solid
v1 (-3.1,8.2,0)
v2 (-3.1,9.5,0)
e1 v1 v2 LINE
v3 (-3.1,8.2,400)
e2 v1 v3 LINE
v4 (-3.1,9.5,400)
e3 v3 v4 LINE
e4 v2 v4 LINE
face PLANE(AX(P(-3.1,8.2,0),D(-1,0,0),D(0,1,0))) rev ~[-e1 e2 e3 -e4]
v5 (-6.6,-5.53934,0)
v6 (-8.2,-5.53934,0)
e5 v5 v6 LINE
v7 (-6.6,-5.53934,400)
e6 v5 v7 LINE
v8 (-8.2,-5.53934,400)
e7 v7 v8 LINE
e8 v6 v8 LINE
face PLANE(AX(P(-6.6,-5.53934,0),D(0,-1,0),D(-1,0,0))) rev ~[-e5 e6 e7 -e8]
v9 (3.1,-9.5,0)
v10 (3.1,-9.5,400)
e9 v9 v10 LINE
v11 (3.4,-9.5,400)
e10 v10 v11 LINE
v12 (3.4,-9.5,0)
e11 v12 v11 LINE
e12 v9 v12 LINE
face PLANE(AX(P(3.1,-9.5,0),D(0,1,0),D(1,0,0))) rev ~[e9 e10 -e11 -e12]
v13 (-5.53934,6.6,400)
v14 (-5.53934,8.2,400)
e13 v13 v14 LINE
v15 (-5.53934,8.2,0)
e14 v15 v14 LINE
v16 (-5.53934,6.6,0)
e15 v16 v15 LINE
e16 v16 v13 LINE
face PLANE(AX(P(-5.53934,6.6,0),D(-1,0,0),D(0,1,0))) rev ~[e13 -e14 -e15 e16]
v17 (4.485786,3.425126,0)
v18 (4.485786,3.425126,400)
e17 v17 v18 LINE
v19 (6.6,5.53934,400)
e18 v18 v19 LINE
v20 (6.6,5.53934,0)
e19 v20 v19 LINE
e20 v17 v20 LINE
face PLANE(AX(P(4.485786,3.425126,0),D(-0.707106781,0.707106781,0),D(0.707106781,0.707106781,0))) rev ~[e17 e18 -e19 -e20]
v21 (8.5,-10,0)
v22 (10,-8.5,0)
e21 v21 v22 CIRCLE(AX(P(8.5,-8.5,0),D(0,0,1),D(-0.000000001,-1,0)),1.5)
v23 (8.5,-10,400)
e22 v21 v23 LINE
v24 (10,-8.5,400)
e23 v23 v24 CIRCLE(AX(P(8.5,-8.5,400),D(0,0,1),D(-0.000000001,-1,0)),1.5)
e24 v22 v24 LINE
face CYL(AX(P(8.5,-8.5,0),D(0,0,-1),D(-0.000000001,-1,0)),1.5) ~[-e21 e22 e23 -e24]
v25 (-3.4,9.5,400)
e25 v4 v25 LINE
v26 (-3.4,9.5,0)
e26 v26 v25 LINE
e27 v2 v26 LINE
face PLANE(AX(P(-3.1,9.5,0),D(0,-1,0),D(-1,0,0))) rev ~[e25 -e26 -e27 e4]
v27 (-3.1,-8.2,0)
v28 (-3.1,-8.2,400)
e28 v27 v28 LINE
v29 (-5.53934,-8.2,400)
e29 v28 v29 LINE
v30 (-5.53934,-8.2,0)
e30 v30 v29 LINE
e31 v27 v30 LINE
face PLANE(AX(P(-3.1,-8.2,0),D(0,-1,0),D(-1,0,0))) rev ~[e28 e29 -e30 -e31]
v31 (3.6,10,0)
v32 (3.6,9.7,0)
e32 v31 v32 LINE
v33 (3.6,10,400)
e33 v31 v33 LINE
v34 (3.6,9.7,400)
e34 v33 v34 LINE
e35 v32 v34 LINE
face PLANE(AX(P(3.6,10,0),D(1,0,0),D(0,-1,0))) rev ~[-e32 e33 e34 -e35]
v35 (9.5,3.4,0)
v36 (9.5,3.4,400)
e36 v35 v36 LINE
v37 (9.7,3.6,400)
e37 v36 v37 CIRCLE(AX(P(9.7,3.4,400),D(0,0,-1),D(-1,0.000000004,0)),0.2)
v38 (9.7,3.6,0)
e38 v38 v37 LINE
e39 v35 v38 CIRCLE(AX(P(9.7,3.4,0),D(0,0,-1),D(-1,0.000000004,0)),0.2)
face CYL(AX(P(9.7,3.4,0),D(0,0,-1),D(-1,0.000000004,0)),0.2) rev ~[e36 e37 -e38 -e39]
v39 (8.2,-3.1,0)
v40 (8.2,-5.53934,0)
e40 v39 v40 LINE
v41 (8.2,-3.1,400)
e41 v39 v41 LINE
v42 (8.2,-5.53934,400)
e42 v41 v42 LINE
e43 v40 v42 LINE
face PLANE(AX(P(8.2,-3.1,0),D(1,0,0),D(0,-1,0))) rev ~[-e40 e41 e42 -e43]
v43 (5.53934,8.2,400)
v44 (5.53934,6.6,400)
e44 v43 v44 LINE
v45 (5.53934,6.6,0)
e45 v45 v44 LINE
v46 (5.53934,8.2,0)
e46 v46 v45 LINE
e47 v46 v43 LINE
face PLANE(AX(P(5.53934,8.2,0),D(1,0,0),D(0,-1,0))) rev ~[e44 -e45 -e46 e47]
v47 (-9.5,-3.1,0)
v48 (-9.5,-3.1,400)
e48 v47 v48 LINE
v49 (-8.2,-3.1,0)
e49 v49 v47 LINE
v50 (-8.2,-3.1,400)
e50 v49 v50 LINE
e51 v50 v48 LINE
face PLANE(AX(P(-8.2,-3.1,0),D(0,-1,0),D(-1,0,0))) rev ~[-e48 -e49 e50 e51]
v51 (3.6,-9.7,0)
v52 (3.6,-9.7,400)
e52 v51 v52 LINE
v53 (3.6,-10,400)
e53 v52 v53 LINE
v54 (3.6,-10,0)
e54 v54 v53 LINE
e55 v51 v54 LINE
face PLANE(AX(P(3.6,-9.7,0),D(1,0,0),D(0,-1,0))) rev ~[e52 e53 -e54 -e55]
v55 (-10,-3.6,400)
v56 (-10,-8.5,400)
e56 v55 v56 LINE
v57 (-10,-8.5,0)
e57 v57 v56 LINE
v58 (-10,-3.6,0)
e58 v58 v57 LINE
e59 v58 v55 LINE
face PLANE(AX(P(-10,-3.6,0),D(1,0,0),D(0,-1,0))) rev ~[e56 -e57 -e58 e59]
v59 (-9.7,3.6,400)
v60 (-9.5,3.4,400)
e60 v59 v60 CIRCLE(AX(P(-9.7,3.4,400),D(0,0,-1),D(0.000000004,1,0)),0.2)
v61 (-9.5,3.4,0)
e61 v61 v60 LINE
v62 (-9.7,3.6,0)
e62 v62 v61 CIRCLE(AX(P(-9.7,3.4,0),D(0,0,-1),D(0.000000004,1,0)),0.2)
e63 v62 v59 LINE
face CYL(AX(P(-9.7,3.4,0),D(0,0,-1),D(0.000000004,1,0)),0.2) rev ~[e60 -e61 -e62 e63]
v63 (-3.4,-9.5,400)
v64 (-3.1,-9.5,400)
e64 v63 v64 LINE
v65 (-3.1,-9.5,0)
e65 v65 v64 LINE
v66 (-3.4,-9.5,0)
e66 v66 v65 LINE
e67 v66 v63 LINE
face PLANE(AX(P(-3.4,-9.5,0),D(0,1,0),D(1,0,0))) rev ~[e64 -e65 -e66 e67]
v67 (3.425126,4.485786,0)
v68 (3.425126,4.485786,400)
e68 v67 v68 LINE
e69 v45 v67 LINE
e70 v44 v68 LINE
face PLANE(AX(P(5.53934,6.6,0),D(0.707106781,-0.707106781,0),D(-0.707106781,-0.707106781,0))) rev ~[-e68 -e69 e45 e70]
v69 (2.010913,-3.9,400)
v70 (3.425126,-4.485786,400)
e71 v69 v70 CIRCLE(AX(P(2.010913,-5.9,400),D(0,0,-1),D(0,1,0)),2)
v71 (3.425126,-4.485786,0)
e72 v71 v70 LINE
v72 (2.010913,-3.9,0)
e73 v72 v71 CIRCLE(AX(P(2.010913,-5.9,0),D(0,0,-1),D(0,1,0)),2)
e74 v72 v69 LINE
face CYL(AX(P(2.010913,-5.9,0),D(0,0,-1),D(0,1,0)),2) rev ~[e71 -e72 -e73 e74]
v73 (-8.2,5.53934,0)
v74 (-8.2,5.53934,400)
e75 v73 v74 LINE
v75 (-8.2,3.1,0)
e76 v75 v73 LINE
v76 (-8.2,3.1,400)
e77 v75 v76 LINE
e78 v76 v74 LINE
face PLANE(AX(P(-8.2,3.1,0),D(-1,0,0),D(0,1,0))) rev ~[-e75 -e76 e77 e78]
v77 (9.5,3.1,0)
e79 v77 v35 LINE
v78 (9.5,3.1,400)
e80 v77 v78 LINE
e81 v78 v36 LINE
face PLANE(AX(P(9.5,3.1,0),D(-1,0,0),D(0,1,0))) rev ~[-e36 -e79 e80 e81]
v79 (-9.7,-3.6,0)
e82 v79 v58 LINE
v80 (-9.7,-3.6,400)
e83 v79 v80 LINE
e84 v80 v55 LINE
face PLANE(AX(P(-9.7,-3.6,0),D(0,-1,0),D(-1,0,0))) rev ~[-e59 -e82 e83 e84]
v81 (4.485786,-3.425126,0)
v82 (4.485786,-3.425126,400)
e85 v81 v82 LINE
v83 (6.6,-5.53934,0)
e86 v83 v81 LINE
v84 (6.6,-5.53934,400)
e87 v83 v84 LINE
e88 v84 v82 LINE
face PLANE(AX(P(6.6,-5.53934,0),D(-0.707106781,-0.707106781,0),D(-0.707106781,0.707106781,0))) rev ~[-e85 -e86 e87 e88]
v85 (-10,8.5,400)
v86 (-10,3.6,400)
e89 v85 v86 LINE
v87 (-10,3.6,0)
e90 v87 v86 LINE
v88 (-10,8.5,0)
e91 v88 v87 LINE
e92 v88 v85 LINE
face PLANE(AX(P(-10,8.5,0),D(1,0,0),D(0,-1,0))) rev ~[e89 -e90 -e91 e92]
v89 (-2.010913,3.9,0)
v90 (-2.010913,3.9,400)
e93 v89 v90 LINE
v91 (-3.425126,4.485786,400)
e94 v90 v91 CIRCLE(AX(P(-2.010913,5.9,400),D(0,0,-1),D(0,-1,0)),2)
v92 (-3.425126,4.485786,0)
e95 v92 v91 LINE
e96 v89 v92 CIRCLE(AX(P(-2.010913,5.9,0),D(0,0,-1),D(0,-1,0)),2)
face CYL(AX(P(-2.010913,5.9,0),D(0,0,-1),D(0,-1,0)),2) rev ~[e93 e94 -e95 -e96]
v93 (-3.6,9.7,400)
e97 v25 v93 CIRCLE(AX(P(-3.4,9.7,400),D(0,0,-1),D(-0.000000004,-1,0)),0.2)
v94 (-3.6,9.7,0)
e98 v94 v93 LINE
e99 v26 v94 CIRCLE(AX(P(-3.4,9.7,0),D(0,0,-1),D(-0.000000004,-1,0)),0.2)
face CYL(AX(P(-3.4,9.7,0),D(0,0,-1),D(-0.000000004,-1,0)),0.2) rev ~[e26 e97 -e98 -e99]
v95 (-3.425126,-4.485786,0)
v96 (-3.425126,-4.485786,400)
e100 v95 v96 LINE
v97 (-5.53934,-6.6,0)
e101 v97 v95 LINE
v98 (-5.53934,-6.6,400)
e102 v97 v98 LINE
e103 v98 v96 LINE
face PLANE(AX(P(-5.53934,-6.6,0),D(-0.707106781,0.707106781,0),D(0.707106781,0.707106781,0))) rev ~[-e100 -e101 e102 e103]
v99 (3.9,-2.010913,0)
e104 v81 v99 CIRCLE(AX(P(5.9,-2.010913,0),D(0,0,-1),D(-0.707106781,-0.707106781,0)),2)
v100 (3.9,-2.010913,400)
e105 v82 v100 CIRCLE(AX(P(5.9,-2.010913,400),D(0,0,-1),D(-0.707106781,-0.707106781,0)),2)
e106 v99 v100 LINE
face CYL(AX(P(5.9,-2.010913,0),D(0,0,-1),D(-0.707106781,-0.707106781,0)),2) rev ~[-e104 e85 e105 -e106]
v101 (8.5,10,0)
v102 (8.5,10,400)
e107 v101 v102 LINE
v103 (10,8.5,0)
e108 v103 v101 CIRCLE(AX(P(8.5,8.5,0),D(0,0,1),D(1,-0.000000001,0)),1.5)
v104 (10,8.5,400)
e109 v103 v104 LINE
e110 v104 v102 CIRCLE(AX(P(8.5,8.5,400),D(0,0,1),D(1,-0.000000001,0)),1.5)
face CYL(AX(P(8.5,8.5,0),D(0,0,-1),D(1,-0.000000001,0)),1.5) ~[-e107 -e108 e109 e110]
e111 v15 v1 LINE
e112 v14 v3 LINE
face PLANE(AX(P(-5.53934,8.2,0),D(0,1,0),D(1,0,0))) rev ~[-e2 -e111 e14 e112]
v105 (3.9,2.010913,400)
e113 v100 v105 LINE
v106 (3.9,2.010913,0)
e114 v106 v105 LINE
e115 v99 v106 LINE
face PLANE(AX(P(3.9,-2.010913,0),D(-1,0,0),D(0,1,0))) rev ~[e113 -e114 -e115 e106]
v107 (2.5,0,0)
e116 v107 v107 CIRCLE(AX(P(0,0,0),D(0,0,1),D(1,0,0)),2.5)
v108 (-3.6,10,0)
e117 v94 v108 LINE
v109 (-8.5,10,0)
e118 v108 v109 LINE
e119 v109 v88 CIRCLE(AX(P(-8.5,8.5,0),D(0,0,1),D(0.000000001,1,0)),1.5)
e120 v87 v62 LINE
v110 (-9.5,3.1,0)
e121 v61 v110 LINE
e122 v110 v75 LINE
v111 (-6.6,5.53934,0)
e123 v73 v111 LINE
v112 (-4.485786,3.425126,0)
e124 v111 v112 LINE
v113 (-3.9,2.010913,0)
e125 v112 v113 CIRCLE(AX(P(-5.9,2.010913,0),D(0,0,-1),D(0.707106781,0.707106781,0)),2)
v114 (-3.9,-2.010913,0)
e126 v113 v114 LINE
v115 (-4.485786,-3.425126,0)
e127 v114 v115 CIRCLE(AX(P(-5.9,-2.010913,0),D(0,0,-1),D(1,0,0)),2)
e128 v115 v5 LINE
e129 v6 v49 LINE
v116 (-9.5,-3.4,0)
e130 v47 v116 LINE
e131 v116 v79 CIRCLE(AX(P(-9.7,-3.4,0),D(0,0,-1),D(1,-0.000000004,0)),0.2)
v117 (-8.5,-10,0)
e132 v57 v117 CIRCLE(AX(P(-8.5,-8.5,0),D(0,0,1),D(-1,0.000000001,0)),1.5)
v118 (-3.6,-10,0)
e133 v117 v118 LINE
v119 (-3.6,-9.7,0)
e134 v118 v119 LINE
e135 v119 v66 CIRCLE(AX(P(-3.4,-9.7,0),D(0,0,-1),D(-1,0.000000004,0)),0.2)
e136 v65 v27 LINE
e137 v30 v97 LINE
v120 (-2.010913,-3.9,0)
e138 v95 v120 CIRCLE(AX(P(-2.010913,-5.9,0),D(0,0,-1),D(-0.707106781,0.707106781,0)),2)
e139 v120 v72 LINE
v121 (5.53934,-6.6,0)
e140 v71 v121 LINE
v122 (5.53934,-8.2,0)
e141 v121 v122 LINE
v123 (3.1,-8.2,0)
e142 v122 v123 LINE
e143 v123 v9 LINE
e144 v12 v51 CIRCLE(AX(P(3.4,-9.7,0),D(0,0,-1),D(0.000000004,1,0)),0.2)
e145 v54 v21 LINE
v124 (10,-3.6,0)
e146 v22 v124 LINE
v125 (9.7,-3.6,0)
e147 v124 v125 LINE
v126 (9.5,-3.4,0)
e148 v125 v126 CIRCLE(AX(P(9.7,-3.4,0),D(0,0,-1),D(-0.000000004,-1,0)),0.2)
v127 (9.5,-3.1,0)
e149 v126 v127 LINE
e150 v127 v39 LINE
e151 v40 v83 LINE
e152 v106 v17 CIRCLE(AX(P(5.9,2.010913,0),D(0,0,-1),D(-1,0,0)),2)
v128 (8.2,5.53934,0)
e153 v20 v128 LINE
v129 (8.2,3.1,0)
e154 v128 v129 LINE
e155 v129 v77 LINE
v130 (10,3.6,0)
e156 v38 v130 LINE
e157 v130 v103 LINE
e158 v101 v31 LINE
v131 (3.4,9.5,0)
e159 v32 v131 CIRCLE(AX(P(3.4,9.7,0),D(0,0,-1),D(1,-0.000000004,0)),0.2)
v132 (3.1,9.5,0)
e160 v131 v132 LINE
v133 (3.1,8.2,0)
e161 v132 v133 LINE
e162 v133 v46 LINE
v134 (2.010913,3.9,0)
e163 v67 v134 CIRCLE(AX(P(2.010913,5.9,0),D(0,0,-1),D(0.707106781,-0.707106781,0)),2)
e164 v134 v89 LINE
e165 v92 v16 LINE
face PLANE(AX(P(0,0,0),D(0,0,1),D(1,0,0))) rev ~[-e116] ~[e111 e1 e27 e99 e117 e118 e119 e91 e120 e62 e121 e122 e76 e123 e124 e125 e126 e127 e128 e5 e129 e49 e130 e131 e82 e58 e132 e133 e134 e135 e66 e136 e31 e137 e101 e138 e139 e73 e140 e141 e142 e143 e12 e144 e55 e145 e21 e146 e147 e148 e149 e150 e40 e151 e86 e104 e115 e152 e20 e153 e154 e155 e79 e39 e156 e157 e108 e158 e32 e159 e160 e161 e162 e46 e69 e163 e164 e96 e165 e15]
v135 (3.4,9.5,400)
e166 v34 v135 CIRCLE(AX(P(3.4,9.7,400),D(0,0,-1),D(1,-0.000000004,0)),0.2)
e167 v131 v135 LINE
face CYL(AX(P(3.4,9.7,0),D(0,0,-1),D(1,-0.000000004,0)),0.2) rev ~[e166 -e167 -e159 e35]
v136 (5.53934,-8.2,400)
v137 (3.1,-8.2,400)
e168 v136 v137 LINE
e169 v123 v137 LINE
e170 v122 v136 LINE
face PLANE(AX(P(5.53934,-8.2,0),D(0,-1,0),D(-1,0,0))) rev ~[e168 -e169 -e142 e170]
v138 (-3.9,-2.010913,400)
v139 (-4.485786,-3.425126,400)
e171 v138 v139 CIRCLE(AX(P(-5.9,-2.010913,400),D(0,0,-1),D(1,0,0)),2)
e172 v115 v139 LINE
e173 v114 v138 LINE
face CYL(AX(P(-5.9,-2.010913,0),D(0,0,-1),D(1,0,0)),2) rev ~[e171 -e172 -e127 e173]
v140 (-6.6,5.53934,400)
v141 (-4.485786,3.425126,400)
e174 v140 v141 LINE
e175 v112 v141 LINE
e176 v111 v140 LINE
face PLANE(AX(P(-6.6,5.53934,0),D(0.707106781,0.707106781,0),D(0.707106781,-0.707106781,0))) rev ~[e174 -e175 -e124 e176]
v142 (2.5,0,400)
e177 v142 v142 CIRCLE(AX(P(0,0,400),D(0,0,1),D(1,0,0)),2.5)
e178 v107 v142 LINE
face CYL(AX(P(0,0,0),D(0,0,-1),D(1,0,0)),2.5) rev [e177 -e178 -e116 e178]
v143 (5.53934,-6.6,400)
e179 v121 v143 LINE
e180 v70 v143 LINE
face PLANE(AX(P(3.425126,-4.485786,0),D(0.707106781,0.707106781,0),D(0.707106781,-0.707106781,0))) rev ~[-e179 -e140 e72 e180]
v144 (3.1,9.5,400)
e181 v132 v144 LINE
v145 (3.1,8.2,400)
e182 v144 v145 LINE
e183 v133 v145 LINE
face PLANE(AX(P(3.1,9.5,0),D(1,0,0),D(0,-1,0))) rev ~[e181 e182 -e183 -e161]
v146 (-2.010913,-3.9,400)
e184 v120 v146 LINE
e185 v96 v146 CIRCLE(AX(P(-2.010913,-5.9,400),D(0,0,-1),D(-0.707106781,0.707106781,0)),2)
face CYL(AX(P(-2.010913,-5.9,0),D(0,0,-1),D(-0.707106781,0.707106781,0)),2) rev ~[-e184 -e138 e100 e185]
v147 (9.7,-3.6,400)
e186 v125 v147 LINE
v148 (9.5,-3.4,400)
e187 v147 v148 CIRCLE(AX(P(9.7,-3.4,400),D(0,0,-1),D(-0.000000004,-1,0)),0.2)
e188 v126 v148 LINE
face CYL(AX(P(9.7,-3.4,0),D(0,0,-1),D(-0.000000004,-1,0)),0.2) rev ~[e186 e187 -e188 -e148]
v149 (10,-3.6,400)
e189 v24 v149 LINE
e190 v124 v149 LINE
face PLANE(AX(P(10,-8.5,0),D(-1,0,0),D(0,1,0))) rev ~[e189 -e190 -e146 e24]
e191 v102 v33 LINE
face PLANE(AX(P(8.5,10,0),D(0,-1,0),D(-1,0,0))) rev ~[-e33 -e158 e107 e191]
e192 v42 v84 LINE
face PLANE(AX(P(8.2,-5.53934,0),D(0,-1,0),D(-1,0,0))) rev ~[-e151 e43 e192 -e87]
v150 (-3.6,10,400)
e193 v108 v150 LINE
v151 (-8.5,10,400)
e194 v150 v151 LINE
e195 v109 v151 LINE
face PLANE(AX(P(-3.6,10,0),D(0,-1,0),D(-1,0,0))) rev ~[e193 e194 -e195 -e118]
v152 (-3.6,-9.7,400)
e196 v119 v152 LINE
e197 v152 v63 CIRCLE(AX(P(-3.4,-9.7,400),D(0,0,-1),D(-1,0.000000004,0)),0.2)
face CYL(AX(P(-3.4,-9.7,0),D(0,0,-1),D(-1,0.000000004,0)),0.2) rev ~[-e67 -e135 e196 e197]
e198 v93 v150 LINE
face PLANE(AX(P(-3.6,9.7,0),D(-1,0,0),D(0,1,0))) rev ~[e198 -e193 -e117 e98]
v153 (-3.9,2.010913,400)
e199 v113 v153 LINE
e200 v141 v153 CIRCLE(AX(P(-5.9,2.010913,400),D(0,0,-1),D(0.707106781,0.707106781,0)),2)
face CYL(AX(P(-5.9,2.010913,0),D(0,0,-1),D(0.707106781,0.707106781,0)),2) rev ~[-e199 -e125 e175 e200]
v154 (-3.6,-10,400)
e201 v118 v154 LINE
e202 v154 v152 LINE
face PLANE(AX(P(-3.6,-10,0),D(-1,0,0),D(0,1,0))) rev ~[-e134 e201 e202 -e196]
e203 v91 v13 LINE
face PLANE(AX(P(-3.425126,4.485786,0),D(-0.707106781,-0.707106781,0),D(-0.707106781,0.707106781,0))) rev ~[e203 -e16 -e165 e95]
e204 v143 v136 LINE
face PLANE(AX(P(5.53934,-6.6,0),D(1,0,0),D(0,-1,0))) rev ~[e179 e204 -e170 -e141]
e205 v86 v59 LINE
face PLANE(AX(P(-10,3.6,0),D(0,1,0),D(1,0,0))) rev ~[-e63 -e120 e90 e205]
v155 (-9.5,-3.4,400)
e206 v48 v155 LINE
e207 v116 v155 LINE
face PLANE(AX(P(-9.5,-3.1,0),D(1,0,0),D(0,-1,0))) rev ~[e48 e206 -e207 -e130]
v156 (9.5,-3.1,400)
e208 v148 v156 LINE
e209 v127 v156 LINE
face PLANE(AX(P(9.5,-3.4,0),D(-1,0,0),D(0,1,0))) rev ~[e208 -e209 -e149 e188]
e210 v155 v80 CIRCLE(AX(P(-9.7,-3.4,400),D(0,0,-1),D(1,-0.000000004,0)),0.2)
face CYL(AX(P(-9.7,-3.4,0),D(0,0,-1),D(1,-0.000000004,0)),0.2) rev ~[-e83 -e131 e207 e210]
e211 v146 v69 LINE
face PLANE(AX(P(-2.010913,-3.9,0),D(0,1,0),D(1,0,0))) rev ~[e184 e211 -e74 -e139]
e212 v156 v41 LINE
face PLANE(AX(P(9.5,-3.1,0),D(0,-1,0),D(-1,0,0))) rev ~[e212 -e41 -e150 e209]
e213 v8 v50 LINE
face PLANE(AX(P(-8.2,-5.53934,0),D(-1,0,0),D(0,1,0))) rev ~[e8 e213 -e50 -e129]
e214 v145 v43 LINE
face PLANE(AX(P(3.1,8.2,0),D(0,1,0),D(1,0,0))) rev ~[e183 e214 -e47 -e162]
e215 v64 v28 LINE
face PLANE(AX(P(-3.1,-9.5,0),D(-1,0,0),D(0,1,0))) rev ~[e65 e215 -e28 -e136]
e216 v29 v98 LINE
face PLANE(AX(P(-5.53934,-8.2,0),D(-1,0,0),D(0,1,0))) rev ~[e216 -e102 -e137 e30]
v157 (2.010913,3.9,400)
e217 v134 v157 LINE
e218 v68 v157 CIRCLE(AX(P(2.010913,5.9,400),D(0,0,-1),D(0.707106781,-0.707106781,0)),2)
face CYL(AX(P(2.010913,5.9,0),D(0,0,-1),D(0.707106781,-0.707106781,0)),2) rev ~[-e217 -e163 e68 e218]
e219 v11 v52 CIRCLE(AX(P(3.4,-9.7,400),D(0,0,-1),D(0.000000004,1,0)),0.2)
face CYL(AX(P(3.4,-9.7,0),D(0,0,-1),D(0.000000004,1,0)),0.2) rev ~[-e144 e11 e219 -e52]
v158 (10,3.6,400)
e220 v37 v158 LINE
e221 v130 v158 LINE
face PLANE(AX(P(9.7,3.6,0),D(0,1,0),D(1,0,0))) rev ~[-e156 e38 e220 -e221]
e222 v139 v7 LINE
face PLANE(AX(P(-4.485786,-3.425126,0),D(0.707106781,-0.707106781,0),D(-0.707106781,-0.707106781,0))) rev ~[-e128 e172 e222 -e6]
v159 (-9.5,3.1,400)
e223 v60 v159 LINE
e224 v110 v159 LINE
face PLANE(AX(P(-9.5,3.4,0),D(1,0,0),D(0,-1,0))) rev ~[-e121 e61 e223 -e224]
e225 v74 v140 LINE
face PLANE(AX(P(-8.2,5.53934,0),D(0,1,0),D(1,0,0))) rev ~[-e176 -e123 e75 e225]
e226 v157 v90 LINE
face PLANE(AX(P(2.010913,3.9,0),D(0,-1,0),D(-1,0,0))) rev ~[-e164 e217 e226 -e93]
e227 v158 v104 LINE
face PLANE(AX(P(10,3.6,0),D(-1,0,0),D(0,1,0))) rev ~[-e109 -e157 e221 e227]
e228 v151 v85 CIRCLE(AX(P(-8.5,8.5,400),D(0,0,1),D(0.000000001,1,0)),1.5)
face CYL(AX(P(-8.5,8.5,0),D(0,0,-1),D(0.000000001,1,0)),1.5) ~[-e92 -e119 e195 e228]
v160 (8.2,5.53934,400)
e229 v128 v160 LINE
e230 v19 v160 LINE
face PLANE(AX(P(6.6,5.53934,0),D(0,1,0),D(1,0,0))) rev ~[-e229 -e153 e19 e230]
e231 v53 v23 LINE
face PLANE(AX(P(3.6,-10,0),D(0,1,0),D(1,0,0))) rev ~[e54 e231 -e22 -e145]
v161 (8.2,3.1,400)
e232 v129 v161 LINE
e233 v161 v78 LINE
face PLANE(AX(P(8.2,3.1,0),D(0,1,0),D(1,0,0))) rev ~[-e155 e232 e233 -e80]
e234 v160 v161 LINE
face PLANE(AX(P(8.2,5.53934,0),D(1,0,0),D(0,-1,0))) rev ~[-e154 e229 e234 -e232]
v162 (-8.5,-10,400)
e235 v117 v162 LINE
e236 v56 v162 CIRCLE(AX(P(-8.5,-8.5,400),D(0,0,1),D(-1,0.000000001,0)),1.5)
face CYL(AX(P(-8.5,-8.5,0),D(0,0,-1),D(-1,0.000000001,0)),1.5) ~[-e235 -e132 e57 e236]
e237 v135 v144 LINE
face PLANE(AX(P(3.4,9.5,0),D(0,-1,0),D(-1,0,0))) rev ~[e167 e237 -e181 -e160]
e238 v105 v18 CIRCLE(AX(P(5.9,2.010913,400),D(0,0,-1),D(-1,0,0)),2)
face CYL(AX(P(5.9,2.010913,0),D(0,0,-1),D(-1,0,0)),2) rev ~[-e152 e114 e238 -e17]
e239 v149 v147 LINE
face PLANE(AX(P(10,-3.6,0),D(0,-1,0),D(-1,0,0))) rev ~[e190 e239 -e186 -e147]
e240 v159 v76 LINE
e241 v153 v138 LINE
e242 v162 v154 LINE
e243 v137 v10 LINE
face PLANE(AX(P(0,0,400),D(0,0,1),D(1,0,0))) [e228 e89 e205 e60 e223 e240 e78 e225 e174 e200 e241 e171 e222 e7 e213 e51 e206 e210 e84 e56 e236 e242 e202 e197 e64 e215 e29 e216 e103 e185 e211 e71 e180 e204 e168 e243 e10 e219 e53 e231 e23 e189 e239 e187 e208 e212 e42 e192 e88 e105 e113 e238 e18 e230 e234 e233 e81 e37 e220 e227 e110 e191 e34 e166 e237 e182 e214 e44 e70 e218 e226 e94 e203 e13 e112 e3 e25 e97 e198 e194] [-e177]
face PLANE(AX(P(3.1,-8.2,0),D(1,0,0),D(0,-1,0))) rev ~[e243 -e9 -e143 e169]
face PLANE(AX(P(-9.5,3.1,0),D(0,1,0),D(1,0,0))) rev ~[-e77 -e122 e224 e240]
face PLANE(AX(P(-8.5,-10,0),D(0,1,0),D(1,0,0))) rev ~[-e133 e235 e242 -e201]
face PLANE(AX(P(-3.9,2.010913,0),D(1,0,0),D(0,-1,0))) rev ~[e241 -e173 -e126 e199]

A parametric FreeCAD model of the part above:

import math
import FreeCAD as App
import Part
import Sketcher
from FreeCAD import Vector
Q = App.Units.Quantity

doc = App.newDocument("Part")
body = doc.addObject("PartDesign::Body", "Body")

sketch1 = body.newObject("Sketcher::SketchObject", "Sketch")
sketch1.AttachmentSupport = (doc.getObject("XY_Plane"), [""])
sketch1.MapMode = "FlatFace"
sketch1.addGeometry(Part.ArcOfCircle(Part.Circle(Vector(-2.01, 5.9, 0), Vector(0, 0, 1), 2), math.radians(-135), math.radians(-90)), False)
sketch1.addGeometry(Part.LineSegment(Vector(-3.43, 4.49, 0), Vector(-5.54, 6.6, 0)), False)
sketch1.addGeometry(Part.LineSegment(Vector(-5.54, 6.6, 0), Vector(-5.54, 8.2, 0)), False)
sketch1.addGeometry(Part.LineSegment(Vector(-5.54, 8.2, 0), Vector(-3.1, 8.2, 0)), False)
sketch1.addGeometry(Part.LineSegment(Vector(-3.1, 8.2, 0), Vector(-3.1, 9.5, 0)), False)
sketch1.addGeometry(Part.LineSegment(Vector(-3.1, 9.5, 0), Vector(-3.4, 9.5, 0)), False)
sketch1.addGeometry(Part.ArcOfCircle(Part.Circle(Vector(-3.4, 9.7, 0), Vector(0, 0, 1), 0.2), math.radians(-180), math.radians(-90)), False)
sketch1.addGeometry(Part.LineSegment(Vector(-3.6, 9.7, 0), Vector(-3.6, 10, 0)), False)
sketch1.addGeometry(Part.LineSegment(Vector(-3.6, 10, 0), Vector(-8.5, 10, 0)), False)
sketch1.addGeometry(Part.ArcOfCircle(Part.Circle(Vector(-8.5, 8.5, 0), Vector(0, 0, 1), 1.5), math.radians(90), math.radians(180)), False)
sketch1.addGeometry(Part.LineSegment(Vector(-10, 8.5, 0), Vector(-10, 3.6, 0)), False)
sketch1.addGeometry(Part.LineSegment(Vector(-10, 3.6, 0), Vector(-9.7, 3.6, 0)), False)
sketch1.addGeometry(Part.ArcOfCircle(Part.Circle(Vector(-9.7, 3.4, 0), Vector(0, 0, 1), 0.2), math.radians(0), math.radians(90)), False)
sketch1.addGeometry(Part.LineSegment(Vector(-9.5, 3.4, 0), Vector(-9.5, 3.1, 0)), False)
sketch1.addGeometry(Part.LineSegment(Vector(-9.5, 3.1, 0), Vector(-8.2, 3.1, 0)), False)
sketch1.addGeometry(Part.LineSegment(Vector(-8.2, 3.1, 0), Vector(-8.2, 5.54, 0)), False)
sketch1.addGeometry(Part.LineSegment(Vector(-8.2, 5.54, 0), Vector(-6.6, 5.54, 0)), False)
sketch1.addGeometry(Part.LineSegment(Vector(-6.6, 5.54, 0), Vector(-4.49, 3.43, 0)), False)
sketch1.addGeometry(Part.ArcOfCircle(Part.Circle(Vector(-5.9, 2.01, 0), Vector(0, 0, 1), 2), math.radians(0), math.radians(45)), False)
sketch1.addGeometry(Part.LineSegment(Vector(-3.9, 2.01, 0), Vector(-3.9, -2.01, 0)), False)
sketch1.addGeometry(Part.ArcOfCircle(Part.Circle(Vector(-5.9, -2.01, 0), Vector(0, 0, 1), 2), math.radians(-45), math.radians(0)), False)
sketch1.addGeometry(Part.LineSegment(Vector(-4.49, -3.43, 0), Vector(-6.6, -5.54, 0)), False)
sketch1.addGeometry(Part.LineSegment(Vector(-6.6, -5.54, 0), Vector(-8.2, -5.54, 0)), False)
sketch1.addGeometry(Part.LineSegment(Vector(-8.2, -5.54, 0), Vector(-8.2, -3.1, 0)), False)
sketch1.addGeometry(Part.LineSegment(Vector(-8.2, -3.1, 0), Vector(-9.5, -3.1, 0)), False)
sketch1.addGeometry(Part.LineSegment(Vector(-9.5, -3.1, 0), Vector(-9.5, -3.4, 0)), False)
sketch1.addGeometry(Part.ArcOfCircle(Part.Circle(Vector(-9.7, -3.4, 0), Vector(0, 0, 1), 0.2), math.radians(-90), math.radians(0)), False)
sketch1.addGeometry(Part.LineSegment(Vector(-9.7, -3.6, 0), Vector(-10, -3.6, 0)), False)
sketch1.addGeometry(Part.LineSegment(Vector(-10, -3.6, 0), Vector(-10, -8.5, 0)), False)
sketch1.addGeometry(Part.ArcOfCircle(Part.Circle(Vector(-8.5, -8.5, 0), Vector(0, 0, 1), 1.5), math.radians(180), math.radians(270)), False)
sketch1.addGeometry(Part.LineSegment(Vector(-8.5, -10, 0), Vector(-3.6, -10, 0)), False)
sketch1.addGeometry(Part.LineSegment(Vector(-3.6, -10, 0), Vector(-3.6, -9.7, 0)), False)
sketch1.addGeometry(Part.ArcOfCircle(Part.Circle(Vector(-3.4, -9.7, 0), Vector(0, 0, 1), 0.2), math.radians(90), math.radians(180)), False)
sketch1.addGeometry(Part.LineSegment(Vector(-3.4, -9.5, 0), Vector(-3.1, -9.5, 0)), False)
sketch1.addGeometry(Part.LineSegment(Vector(-3.1, -9.5, 0), Vector(-3.1, -8.2, 0)), False)
sketch1.addGeometry(Part.LineSegment(Vector(-3.1, -8.2, 0), Vector(-5.54, -8.2, 0)), False)
sketch1.addGeometry(Part.LineSegment(Vector(-5.54, -8.2, 0), Vector(-5.54, -6.6, 0)), False)
sketch1.addGeometry(Part.LineSegment(Vector(-5.54, -6.6, 0), Vector(-3.43, -4.49, 0)), False)
sketch1.addGeometry(Part.ArcOfCircle(Part.Circle(Vector(-2.01, -5.9, 0), Vector(0, 0, 1), 2), math.radians(90), math.radians(135)), False)
sketch1.addGeometry(Part.LineSegment(Vector(-2.01, -3.9, 0), Vector(2.01, -3.9, 0)), False)
sketch1.addGeometry(Part.ArcOfCircle(Part.Circle(Vector(2.01, -5.9, 0), Vector(0, 0, 1), 2), math.radians(45), math.radians(90)), False)
sketch1.addGeometry(Part.LineSegment(Vector(3.43, -4.49, 0), Vector(5.54, -6.6, 0)), False)
sketch1.addGeometry(Part.LineSegment(Vector(5.54, -6.6, 0), Vector(5.54, -8.2, 0)), False)
sketch1.addGeometry(Part.LineSegment(Vector(5.54, -8.2, 0), Vector(3.1, -8.2, 0)), False)
sketch1.addGeometry(Part.LineSegment(Vector(3.1, -8.2, 0), Vector(3.1, -9.5, 0)), False)
sketch1.addGeometry(Part.LineSegment(Vector(3.1, -9.5, 0), Vector(3.4, -9.5, 0)), False)
sketch1.addGeometry(Part.ArcOfCircle(Part.Circle(Vector(3.4, -9.7, 0), Vector(0, 0, 1), 0.2), math.radians(0), math.radians(90)), False)
sketch1.addGeometry(Part.LineSegment(Vector(3.6, -9.7, 0), Vector(3.6, -10, 0)), False)
sketch1.addGeometry(Part.LineSegment(Vector(3.6, -10, 0), Vector(8.5, -10, 0)), False)
sketch1.addGeometry(Part.ArcOfCircle(Part.Circle(Vector(8.5, -8.5, 0), Vector(0, 0, 1), 1.5), math.radians(-90), math.radians(0)), False)
sketch1.addGeometry(Part.LineSegment(Vector(10, -8.5, 0), Vector(10, -3.6, 0)), False)
sketch1.addGeometry(Part.LineSegment(Vector(10, -3.6, 0), Vector(9.7, -3.6, 0)), False)
sketch1.addGeometry(Part.ArcOfCircle(Part.Circle(Vector(9.7, -3.4, 0), Vector(0, 0, 1), 0.2), math.radians(-180), math.radians(-90)), False)
sketch1.addGeometry(Part.LineSegment(Vector(9.5, -3.4, 0), Vector(9.5, -3.1, 0)), False)
sketch1.addGeometry(Part.LineSegment(Vector(9.5, -3.1, 0), Vector(8.2, -3.1, 0)), False)
sketch1.addGeometry(Part.LineSegment(Vector(8.2, -3.1, 0), Vector(8.2, -5.54, 0)), False)
sketch1.addGeometry(Part.LineSegment(Vector(8.2, -5.54, 0), Vector(6.6, -5.54, 0)), False)
sketch1.addGeometry(Part.LineSegment(Vector(6.6, -5.54, 0), Vector(4.49, -3.43, 0)), False)
sketch1.addGeometry(Part.ArcOfCircle(Part.Circle(Vector(5.9, -2.01, 0), Vector(0, 0, 1), 2), math.radians(180), math.radians(225)), False)
sketch1.addGeometry(Part.LineSegment(Vector(3.9, -2.01, 0), Vector(3.9, 2.01, 0)), False)
sketch1.addGeometry(Part.ArcOfCircle(Part.Circle(Vector(5.9, 2.01, 0), Vector(0, 0, 1), 2), math.radians(135), math.radians(180)), False)
sketch1.addGeometry(Part.LineSegment(Vector(4.49, 3.43, 0), Vector(6.6, 5.54, 0)), False)
sketch1.addGeometry(Part.LineSegment(Vector(6.6, 5.54, 0), Vector(8.2, 5.54, 0)), False)
sketch1.addGeometry(Part.LineSegment(Vector(8.2, 5.54, 0), Vector(8.2, 3.1, 0)), False)
sketch1.addGeometry(Part.LineSegment(Vector(8.2, 3.1, 0), Vector(9.5, 3.1, 0)), False)
sketch1.addGeometry(Part.LineSegment(Vector(9.5, 3.1, 0), Vector(9.5, 3.4, 0)), False)
sketch1.addGeometry(Part.ArcOfCircle(Part.Circle(Vector(9.7, 3.4, 0), Vector(0, 0, 1), 0.2), math.radians(90), math.radians(180)), False)
sketch1.addGeometry(Part.LineSegment(Vector(9.7, 3.6, 0), Vector(10, 3.6, 0)), False)
sketch1.addGeometry(Part.LineSegment(Vector(10, 3.6, 0), Vector(10, 8.5, 0)), False)
sketch1.addGeometry(Part.ArcOfCircle(Part.Circle(Vector(8.5, 8.5, 0), Vector(0, 0, 1), 1.5), math.radians(0), math.radians(90)), False)
sketch1.addGeometry(Part.LineSegment(Vector(8.5, 10, 0), Vector(3.6, 10, 0)), False)
sketch1.addGeometry(Part.LineSegment(Vector(3.6, 10, 0), Vector(3.6, 9.7, 0)), False)
sketch1.addGeometry(Part.ArcOfCircle(Part.Circle(Vector(3.4, 9.7, 0), Vector(0, 0, 1), 0.2), math.radians(-90), math.radians(0)), False)
sketch1.addGeometry(Part.LineSegment(Vector(3.4, 9.5, 0), Vector(3.1, 9.5, 0)), False)
sketch1.addGeometry(Part.LineSegment(Vector(3.1, 9.5, 0), Vector(3.1, 8.2, 0)), False)
sketch1.addGeometry(Part.LineSegment(Vector(3.1, 8.2, 0), Vector(5.54, 8.2, 0)), False)
sketch1.addGeometry(Part.LineSegment(Vector(5.54, 8.2, 0), Vector(5.54, 6.6, 0)), False)
sketch1.addGeometry(Part.LineSegment(Vector(5.54, 6.6, 0), Vector(3.43, 4.49, 0)), False)
sketch1.addGeometry(Part.ArcOfCircle(Part.Circle(Vector(2.01, 5.9, 0), Vector(0, 0, 1), 2), math.radians(-90), math.radians(-45)), False)
sketch1.addGeometry(Part.LineSegment(Vector(2.01, 3.9, 0), Vector(-2.01, 3.9, 0)), False)
sketch1.addGeometry(Part.Circle(Vector(0, 0, 0), Vector(0, 0, 1), 2.5), False)
sketch1.addConstraint(Sketcher.Constraint("Tangent", 0, 1, 1, 1))
sketch1.addConstraint(Sketcher.Constraint("Coincident", 1, 2, 2, 1))
sketch1.addConstraint(Sketcher.Constraint("Coincident", 2, 2, 3, 1))
sketch1.addConstraint(Sketcher.Constraint("Coincident", 3, 2, 4, 1))
sketch1.addConstraint(Sketcher.Constraint("Coincident", 4, 2, 5, 1))
sketch1.addConstraint(Sketcher.Constraint("Tangent", 5, 2, 6, 2))
sketch1.addConstraint(Sketcher.Constraint("Tangent", 6, 1, 7, 1))
sketch1.addConstraint(Sketcher.Constraint("Coincident", 7, 2, 8, 1))
sketch1.addConstraint(Sketcher.Constraint("Tangent", 8, 2, 9, 1))
sketch1.addConstraint(Sketcher.Constraint("Tangent", 9, 2, 10, 1))
sketch1.addConstraint(Sketcher.Constraint("Coincident", 10, 2, 11, 1))
sketch1.addConstraint(Sketcher.Constraint("Tangent", 11, 2, 12, 2))
sketch1.addConstraint(Sketcher.Constraint("Tangent", 12, 1, 13, 1))
sketch1.addConstraint(Sketcher.Constraint("Coincident", 13, 2, 14, 1))
sketch1.addConstraint(Sketcher.Constraint("Coincident", 14, 2, 15, 1))
sketch1.addConstraint(Sketcher.Constraint("Coincident", 15, 2, 16, 1))
sketch1.addConstraint(Sketcher.Constraint("Coincident", 16, 2, 17, 1))
sketch1.addConstraint(Sketcher.Constraint("Tangent", 17, 2, 18, 2))
sketch1.addConstraint(Sketcher.Constraint("Tangent", 18, 1, 19, 1))
sketch1.addConstraint(Sketcher.Constraint("Tangent", 19, 2, 20, 2))
sketch1.addConstraint(Sketcher.Constraint("Tangent", 20, 1, 21, 1))
sketch1.addConstraint(Sketcher.Constraint("Coincident", 21, 2, 22, 1))
sketch1.addConstraint(Sketcher.Constraint("Coincident", 22, 2, 23, 1))
sketch1.addConstraint(Sketcher.Constraint("Coincident", 23, 2, 24, 1))
sketch1.addConstraint(Sketcher.Constraint("Coincident", 24, 2, 25, 1))
sketch1.addConstraint(Sketcher.Constraint("Tangent", 25, 2, 26, 2))
sketch1.addConstraint(Sketcher.Constraint("Tangent", 26, 1, 27, 1))
sketch1.addConstraint(Sketcher.Constraint("Coincident", 27, 2, 28, 1))
sketch1.addConstraint(Sketcher.Constraint("Tangent", 28, 2, 29, 1))
sketch1.addConstraint(Sketcher.Constraint("Tangent", 29, 2, 30, 1))
sketch1.addConstraint(Sketcher.Constraint("Coincident", 30, 2, 31, 1))
sketch1.addConstraint(Sketcher.Constraint("Tangent", 31, 2, 32, 2))
sketch1.addConstraint(Sketcher.Constraint("Tangent", 32, 1, 33, 1))
sketch1.addConstraint(Sketcher.Constraint("Coincident", 33, 2, 34, 1))
sketch1.addConstraint(Sketcher.Constraint("Coincident", 34, 2, 35, 1))
sketch1.addConstraint(Sketcher.Constraint("Coincident", 35, 2, 36, 1))
sketch1.addConstraint(Sketcher.Constraint("Coincident", 36, 2, 37, 1))
sketch1.addConstraint(Sketcher.Constraint("Tangent", 37, 2, 38, 2))
sketch1.addConstraint(Sketcher.Constraint("Tangent", 38, 1, 39, 1))
sketch1.addConstraint(Sketcher.Constraint("Tangent", 39, 2, 40, 2))
sketch1.addConstraint(Sketcher.Constraint("Tangent", 40, 1, 41, 1))
sketch1.addConstraint(Sketcher.Constraint("Coincident", 41, 2, 42, 1))
sketch1.addConstraint(Sketcher.Constraint("Coincident", 42, 2, 43, 1))
sketch1.addConstraint(Sketcher.Constraint("Coincident", 43, 2, 44, 1))
sketch1.addConstraint(Sketcher.Constraint("Coincident", 44, 2, 45, 1))
sketch1.addConstraint(Sketcher.Constraint("Tangent", 45, 2, 46, 2))
sketch1.addConstraint(Sketcher.Constraint("Tangent", 46, 1, 47, 1))
sketch1.addConstraint(Sketcher.Constraint("Coincident", 47, 2, 48, 1))
sketch1.addConstraint(Sketcher.Constraint("Tangent", 48, 2, 49, 1))
sketch1.addConstraint(Sketcher.Constraint("Tangent", 49, 2, 50, 1))
sketch1.addConstraint(Sketcher.Constraint("Coincident", 50, 2, 51, 1))
sketch1.addConstraint(Sketcher.Constraint("Tangent", 51, 2, 52, 2))
sketch1.addConstraint(Sketcher.Constraint("Tangent", 52, 1, 53, 1))
sketch1.addConstraint(Sketcher.Constraint("Coincident", 53, 2, 54, 1))
sketch1.addConstraint(Sketcher.Constraint("Coincident", 54, 2, 55, 1))
sketch1.addConstraint(Sketcher.Constraint("Coincident", 55, 2, 56, 1))
sketch1.addConstraint(Sketcher.Constraint("Coincident", 56, 2, 57, 1))
sketch1.addConstraint(Sketcher.Constraint("Tangent", 57, 2, 58, 2))
sketch1.addConstraint(Sketcher.Constraint("Tangent", 58, 1, 59, 1))
sketch1.addConstraint(Sketcher.Constraint("Tangent", 59, 2, 60, 2))
sketch1.addConstraint(Sketcher.Constraint("Tangent", 60, 1, 61, 1))
sketch1.addConstraint(Sketcher.Constraint("Coincident", 61, 2, 62, 1))
sketch1.addConstraint(Sketcher.Constraint("Coincident", 62, 2, 63, 1))
sketch1.addConstraint(Sketcher.Constraint("Coincident", 63, 2, 64, 1))
sketch1.addConstraint(Sketcher.Constraint("Coincident", 64, 2, 65, 1))
sketch1.addConstraint(Sketcher.Constraint("Tangent", 65, 2, 66, 2))
sketch1.addConstraint(Sketcher.Constraint("Tangent", 66, 1, 67, 1))
sketch1.addConstraint(Sketcher.Constraint("Coincident", 67, 2, 68, 1))
sketch1.addConstraint(Sketcher.Constraint("Tangent", 68, 2, 69, 1))
sketch1.addConstraint(Sketcher.Constraint("Tangent", 69, 2, 70, 1))
sketch1.addConstraint(Sketcher.Constraint("Coincident", 70, 2, 71, 1))
sketch1.addConstraint(Sketcher.Constraint("Tangent", 71, 2, 72, 2))
sketch1.addConstraint(Sketcher.Constraint("Tangent", 72, 1, 73, 1))
sketch1.addConstraint(Sketcher.Constraint("Coincident", 73, 2, 74, 1))
sketch1.addConstraint(Sketcher.Constraint("Coincident", 74, 2, 75, 1))
sketch1.addConstraint(Sketcher.Constraint("Coincident", 75, 2, 76, 1))
sketch1.addConstraint(Sketcher.Constraint("Coincident", 76, 2, 77, 1))
sketch1.addConstraint(Sketcher.Constraint("Tangent", 77, 2, 78, 2))
sketch1.addConstraint(Sketcher.Constraint("Tangent", 78, 1, 79, 1))
sketch1.addConstraint(Sketcher.Constraint("Tangent", 79, 2, 0, 2))
sketch1.addConstraint(Sketcher.Constraint("Vertical", 2))
sketch1.addConstraint(Sketcher.Constraint("Horizontal", 3))
sketch1.addConstraint(Sketcher.Constraint("Vertical", 4))
sketch1.addConstraint(Sketcher.Constraint("Horizontal", 5))
sketch1.addConstraint(Sketcher.Constraint("Vertical", 7))
sketch1.addConstraint(Sketcher.Constraint("Horizontal", 8))
sketch1.addConstraint(Sketcher.Constraint("Vertical", 10))
sketch1.addConstraint(Sketcher.Constraint("Horizontal", 11))
sketch1.addConstraint(Sketcher.Constraint("Vertical", 13))
sketch1.addConstraint(Sketcher.Constraint("Horizontal", 14))
sketch1.addConstraint(Sketcher.Constraint("Vertical", 15))
sketch1.addConstraint(Sketcher.Constraint("Horizontal", 16))
sketch1.addConstraint(Sketcher.Constraint("Vertical", 19))
sketch1.addConstraint(Sketcher.Constraint("Horizontal", 22))
sketch1.addConstraint(Sketcher.Constraint("Vertical", 23))
sketch1.addConstraint(Sketcher.Constraint("Horizontal", 24))
sketch1.addConstraint(Sketcher.Constraint("Vertical", 25))
sketch1.addConstraint(Sketcher.Constraint("Horizontal", 27))
sketch1.addConstraint(Sketcher.Constraint("Vertical", 28))
sketch1.addConstraint(Sketcher.Constraint("Horizontal", 30))
sketch1.addConstraint(Sketcher.Constraint("Vertical", 31))
sketch1.addConstraint(Sketcher.Constraint("Horizontal", 33))
sketch1.addConstraint(Sketcher.Constraint("Vertical", 34))
sketch1.addConstraint(Sketcher.Constraint("Horizontal", 35))
sketch1.addConstraint(Sketcher.Constraint("Vertical", 36))
sketch1.addConstraint(Sketcher.Constraint("Horizontal", 39))
sketch1.addConstraint(Sketcher.Constraint("Vertical", 42))
sketch1.addConstraint(Sketcher.Constraint("Horizontal", 43))
sketch1.addConstraint(Sketcher.Constraint("Vertical", 44))
sketch1.addConstraint(Sketcher.Constraint("Horizontal", 45))
sketch1.addConstraint(Sketcher.Constraint("Vertical", 47))
sketch1.addConstraint(Sketcher.Constraint("Horizontal", 48))
sketch1.addConstraint(Sketcher.Constraint("Vertical", 50))
sketch1.addConstraint(Sketcher.Constraint("Horizontal", 51))
sketch1.addConstraint(Sketcher.Constraint("Vertical", 53))
sketch1.addConstraint(Sketcher.Constraint("Horizontal", 54))
sketch1.addConstraint(Sketcher.Constraint("Vertical", 55))
sketch1.addConstraint(Sketcher.Constraint("Horizontal", 56))
sketch1.addConstraint(Sketcher.Constraint("Vertical", 59))
sketch1.addConstraint(Sketcher.Constraint("Horizontal", 62))
sketch1.addConstraint(Sketcher.Constraint("Vertical", 63))
sketch1.addConstraint(Sketcher.Constraint("Horizontal", 64))
sketch1.addConstraint(Sketcher.Constraint("Vertical", 65))
sketch1.addConstraint(Sketcher.Constraint("Horizontal", 67))
sketch1.addConstraint(Sketcher.Constraint("Vertical", 68))
sketch1.addConstraint(Sketcher.Constraint("Horizontal", 70))
sketch1.addConstraint(Sketcher.Constraint("Vertical", 71))
sketch1.addConstraint(Sketcher.Constraint("Horizontal", 73))
sketch1.addConstraint(Sketcher.Constraint("Vertical", 74))
sketch1.addConstraint(Sketcher.Constraint("Horizontal", 75))
sketch1.addConstraint(Sketcher.Constraint("Vertical", 76))
sketch1.addConstraint(Sketcher.Constraint("Horizontal", 79))
sketch1.addConstraint(Sketcher.Constraint("Coincident", 80, 3, -1, 1))
sketch1.addConstraint(Sketcher.Constraint("Equal", 6, 12))
sketch1.addConstraint(Sketcher.Constraint("Equal", 0, 18))
sketch1.addConstraint(Sketcher.Constraint("Equal", 18, 20))
sketch1.addConstraint(Sketcher.Constraint("Equal", 12, 26))
sketch1.addConstraint(Sketcher.Constraint("Equal", 9, 29))
sketch1.addConstraint(Sketcher.Constraint("Equal", 26, 32))
sketch1.addConstraint(Sketcher.Constraint("Equal", 20, 38))
sketch1.addConstraint(Sketcher.Constraint("Equal", 38, 40))
sketch1.addConstraint(Sketcher.Constraint("Equal", 32, 46))
sketch1.addConstraint(Sketcher.Constraint("Equal", 29, 49))
sketch1.addConstraint(Sketcher.Constraint("Equal", 46, 52))
sketch1.addConstraint(Sketcher.Constraint("Equal", 40, 58))
sketch1.addConstraint(Sketcher.Constraint("Equal", 58, 60))
sketch1.addConstraint(Sketcher.Constraint("Equal", 52, 66))
sketch1.addConstraint(Sketcher.Constraint("Equal", 49, 69))
sketch1.addConstraint(Sketcher.Constraint("Equal", 66, 72))
sketch1.addConstraint(Sketcher.Constraint("Equal", 60, 78))
sketch1.addConstraint(Sketcher.Constraint("Symmetric", 0, 3, 40, 3, -1, 1))
sketch1.addConstraint(Sketcher.Constraint("Symmetric", 6, 3, 46, 3, -1, 1))
sketch1.addConstraint(Sketcher.Constraint("Symmetric", 9, 3, 49, 3, -1, 1))
sketch1.addConstraint(Sketcher.Constraint("Symmetric", 12, 3, 52, 3, -1, 1))
sketch1.addConstraint(Sketcher.Constraint("Symmetric", 18, 3, 58, 3, -1, 1))
sketch1.addConstraint(Sketcher.Constraint("Symmetric", 26, 3, 66, 3, -1, 1))
sketch1.addConstraint(Sketcher.Constraint("Symmetric", 29, 3, 69, 3, -1, 1))
sketch1.addConstraint(Sketcher.Constraint("Symmetric", 32, 3, 72, 3, -1, 1))
sketch1.addConstraint(Sketcher.Constraint("Symmetric", 1, 2, 41, 2, -1, 1))
sketch1.addConstraint(Sketcher.Constraint("Symmetric", 3, 2, 43, 2, -1, 1))
sketch1.addConstraint(Sketcher.Constraint("Symmetric", 14, 2, 54, 2, -1, 1))
sketch1.addConstraint(Sketcher.Constraint("Symmetric", 16, 2, 56, 2, -1, 1))
sketch1.addConstraint(Sketcher.Constraint("Symmetric", 20, 1, 60, 1, -1, 1))
sketch1.addConstraint(Sketcher.Constraint("Symmetric", 22, 2, 62, 2, -1, 1))
sketch1.addConstraint(Sketcher.Constraint("Symmetric", 34, 2, 74, 2, -1, 1))
sketch1.addConstraint(Sketcher.Constraint("Symmetric", 36, 2, 76, 2, -1, 1))
sketch1.addConstraint(Sketcher.Constraint("Symmetric", 32, 3, 46, 3, -2))
sketch1.addConstraint(Sketcher.Constraint("Symmetric", 29, 3, 49, 3, -2))
sketch1.addConstraint(Sketcher.Constraint("Symmetric", 26, 3, 52, 3, -2))
sketch1.addConstraint(Sketcher.Constraint("Symmetric", 37, 2, 40, 1, -2))
sketch1.addConstraint(Sketcher.Constraint("Symmetric", 35, 2, 42, 2, -2))
sketch1.addConstraint(Sketcher.Constraint("Symmetric", 23, 2, 54, 2, -2))
sketch1.addConstraint(Sketcher.Constraint("Symmetric", 21, 2, 56, 2, -2))
sketch1.addConstraint(Sketcher.Constraint("Parallel", 1, 17))
sketch1.addConstraint(Sketcher.Constraint("Perpendicular", 17, 21))
sketch1.addConstraint(Sketcher.Constraint("Parallel", 21, 37))
sketch1.addConstraint(Sketcher.Constraint("Parallel", 61, 77))
sketch1.addConstraint(Sketcher.Constraint("Horizontal", 14, 2, 63, 2))
sketch1.addConstraint(Sketcher.Constraint("Vertical", 4, 2, 33, 2))
sketch1.addConstraint(Sketcher.Constraint("Equal", 5, 11))
sketch1.addConstraint(Sketcher.Constraint("Equal", 62, 2))
sketch1.addConstraint(Sketcher.Constraint("Equal", 64, 4))
sketch1.addConstraint(Sketcher.Constraint("Equal", 73, 7))
sketch1.addConstraint(Sketcher.Constraint("Equal", 70, 10))
sketch1.addConstraint(Sketcher.Constraint("Equal", 7, 13))
sketch1.addConstraint(Sketcher.Constraint("Equal", 75, 15))
sketch1.addConstraint(Sketcher.Constraint("Equal", 79, 19))
sketch1.addConstraint(Sketcher.Constraint("Equal", 1, 17))
sketch1.addConstraint(Sketcher.Constraint("Diameter", 80, Q("5 mm")))
sketch1.addConstraint(Sketcher.Constraint("Radius", 0, Q("2 mm")))
sketch1.addConstraint(Sketcher.Constraint("Radius", 6, Q("0.2 mm")))
sketch1.addConstraint(Sketcher.Constraint("Radius", 9, Q("1.5 mm")))
sketch1.addConstraint(Sketcher.Constraint("DistanceX", 5, 2, 5, 1, Q("0.3 mm")))
sketch1.addConstraint(Sketcher.Constraint("DistanceX", 8, 2, 8, 1, Q("4.9 mm")))
sketch1.addConstraint(Sketcher.Constraint("DistanceX", 14, 1, 14, 2, Q("1.3 mm")))
sketch1.addConstraint(Sketcher.Constraint("DistanceX", 16, 1, 16, 2, Q("1.6 mm")))
sketch1.addConstraint(Sketcher.Constraint("DistanceY", -1, 1, 7, 2, Q("10 mm")))
sketch1.addConstraint(Sketcher.Constraint("DistanceY", -1, 1, 0, 3, Q("5.9 mm")))
sketch1.addConstraint(Sketcher.Constraint("DistanceX", 3, 1, 3, 2, Q("2.43934 mm")))
pad1 = body.newObject("PartDesign::Pad", "Pad")
pad1.Profile = sketch1
pad1.Length = 400

doc.recompute()
